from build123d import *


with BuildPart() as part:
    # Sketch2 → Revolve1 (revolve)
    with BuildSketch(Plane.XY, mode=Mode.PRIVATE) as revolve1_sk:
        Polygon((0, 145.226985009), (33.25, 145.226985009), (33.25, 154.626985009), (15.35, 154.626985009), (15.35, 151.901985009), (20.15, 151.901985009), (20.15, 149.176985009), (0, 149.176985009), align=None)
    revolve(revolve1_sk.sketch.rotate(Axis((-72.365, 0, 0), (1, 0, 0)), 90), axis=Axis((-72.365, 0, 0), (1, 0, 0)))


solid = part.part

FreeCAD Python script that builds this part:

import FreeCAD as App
import Part
import Sketcher

V = App.Vector
Q = App.Units.Quantity


def add_polygon(sketch, points):
    """Adds a closed chain of lines whose ends are joined by coincident constraints."""
    first, n = sketch.GeometryCount, len(points)
    for a, b in zip(points, points[1:] + points[:1]):
        sketch.addGeometry(Part.LineSegment(App.Vector(*a, 0), App.Vector(*b, 0)), False)
    for i in range(n):
        sketch.addConstraint(Sketcher.Constraint("Coincident", first + i, 2, first + (i + 1) % n, 1))

doc = App.newDocument("Part")
body = doc.addObject("PartDesign::Body", "Body")

sketch1 = body.newObject("Sketcher::SketchObject", "Sketch")
sketch1.AttachmentSupport = (doc.getObject("XY_Plane"), [""])
sketch1.MapMode = "FlatFace"
add_polygon(sketch1, [(0, 145.2), (33.2, 145.2), (33.2, 154.6), (15.3, 154.6), (15.3, 151.9), (20.1, 151.9), (20.1, 149.2), (0, 149.2)])
sketch1.addConstraint([
    Sketcher.Constraint("Horizontal", 0),
    Sketcher.Constraint("Vertical", 1),
    Sketcher.Constraint("Horizontal", 2),
    Sketcher.Constraint("Vertical", 3),
    Sketcher.Constraint("Horizontal", 4),
    Sketcher.Constraint("Vertical", 5),
    Sketcher.Constraint("Horizontal", 6),
    Sketcher.Constraint("Vertical", 7),
    Sketcher.Constraint("PointOnObject", 6, 2, -2),
    Sketcher.Constraint("Equal", 3, 5),
    Sketcher.Constraint("DistanceX", 2, 2, 2, 1, Q("17.9 mm")),
    Sketcher.Constraint("DistanceX", 4, 1, 4, 2, Q("4.8 mm")),
    Sketcher.Constraint("DistanceY", 1, 1, 1, 2, Q("9.4 mm")),
    Sketcher.Constraint("DistanceX", 0, 1, 0, 2, Q("33.25 mm")),
    Sketcher.Constraint("DistanceY", 7, 2, 7, 1, Q("3.95 mm")),
    Sketcher.Constraint("DistanceY", -1, 1, 0, 2, Q("145.226985 mm")),
])
revolution = body.newObject("PartDesign::Revolution", "Revolution")
revolution.Profile = sketch1
revolution.ReferenceAxis = (sketch1, ["H_Axis"])
revolution.Angle = 360

doc.recompute()
